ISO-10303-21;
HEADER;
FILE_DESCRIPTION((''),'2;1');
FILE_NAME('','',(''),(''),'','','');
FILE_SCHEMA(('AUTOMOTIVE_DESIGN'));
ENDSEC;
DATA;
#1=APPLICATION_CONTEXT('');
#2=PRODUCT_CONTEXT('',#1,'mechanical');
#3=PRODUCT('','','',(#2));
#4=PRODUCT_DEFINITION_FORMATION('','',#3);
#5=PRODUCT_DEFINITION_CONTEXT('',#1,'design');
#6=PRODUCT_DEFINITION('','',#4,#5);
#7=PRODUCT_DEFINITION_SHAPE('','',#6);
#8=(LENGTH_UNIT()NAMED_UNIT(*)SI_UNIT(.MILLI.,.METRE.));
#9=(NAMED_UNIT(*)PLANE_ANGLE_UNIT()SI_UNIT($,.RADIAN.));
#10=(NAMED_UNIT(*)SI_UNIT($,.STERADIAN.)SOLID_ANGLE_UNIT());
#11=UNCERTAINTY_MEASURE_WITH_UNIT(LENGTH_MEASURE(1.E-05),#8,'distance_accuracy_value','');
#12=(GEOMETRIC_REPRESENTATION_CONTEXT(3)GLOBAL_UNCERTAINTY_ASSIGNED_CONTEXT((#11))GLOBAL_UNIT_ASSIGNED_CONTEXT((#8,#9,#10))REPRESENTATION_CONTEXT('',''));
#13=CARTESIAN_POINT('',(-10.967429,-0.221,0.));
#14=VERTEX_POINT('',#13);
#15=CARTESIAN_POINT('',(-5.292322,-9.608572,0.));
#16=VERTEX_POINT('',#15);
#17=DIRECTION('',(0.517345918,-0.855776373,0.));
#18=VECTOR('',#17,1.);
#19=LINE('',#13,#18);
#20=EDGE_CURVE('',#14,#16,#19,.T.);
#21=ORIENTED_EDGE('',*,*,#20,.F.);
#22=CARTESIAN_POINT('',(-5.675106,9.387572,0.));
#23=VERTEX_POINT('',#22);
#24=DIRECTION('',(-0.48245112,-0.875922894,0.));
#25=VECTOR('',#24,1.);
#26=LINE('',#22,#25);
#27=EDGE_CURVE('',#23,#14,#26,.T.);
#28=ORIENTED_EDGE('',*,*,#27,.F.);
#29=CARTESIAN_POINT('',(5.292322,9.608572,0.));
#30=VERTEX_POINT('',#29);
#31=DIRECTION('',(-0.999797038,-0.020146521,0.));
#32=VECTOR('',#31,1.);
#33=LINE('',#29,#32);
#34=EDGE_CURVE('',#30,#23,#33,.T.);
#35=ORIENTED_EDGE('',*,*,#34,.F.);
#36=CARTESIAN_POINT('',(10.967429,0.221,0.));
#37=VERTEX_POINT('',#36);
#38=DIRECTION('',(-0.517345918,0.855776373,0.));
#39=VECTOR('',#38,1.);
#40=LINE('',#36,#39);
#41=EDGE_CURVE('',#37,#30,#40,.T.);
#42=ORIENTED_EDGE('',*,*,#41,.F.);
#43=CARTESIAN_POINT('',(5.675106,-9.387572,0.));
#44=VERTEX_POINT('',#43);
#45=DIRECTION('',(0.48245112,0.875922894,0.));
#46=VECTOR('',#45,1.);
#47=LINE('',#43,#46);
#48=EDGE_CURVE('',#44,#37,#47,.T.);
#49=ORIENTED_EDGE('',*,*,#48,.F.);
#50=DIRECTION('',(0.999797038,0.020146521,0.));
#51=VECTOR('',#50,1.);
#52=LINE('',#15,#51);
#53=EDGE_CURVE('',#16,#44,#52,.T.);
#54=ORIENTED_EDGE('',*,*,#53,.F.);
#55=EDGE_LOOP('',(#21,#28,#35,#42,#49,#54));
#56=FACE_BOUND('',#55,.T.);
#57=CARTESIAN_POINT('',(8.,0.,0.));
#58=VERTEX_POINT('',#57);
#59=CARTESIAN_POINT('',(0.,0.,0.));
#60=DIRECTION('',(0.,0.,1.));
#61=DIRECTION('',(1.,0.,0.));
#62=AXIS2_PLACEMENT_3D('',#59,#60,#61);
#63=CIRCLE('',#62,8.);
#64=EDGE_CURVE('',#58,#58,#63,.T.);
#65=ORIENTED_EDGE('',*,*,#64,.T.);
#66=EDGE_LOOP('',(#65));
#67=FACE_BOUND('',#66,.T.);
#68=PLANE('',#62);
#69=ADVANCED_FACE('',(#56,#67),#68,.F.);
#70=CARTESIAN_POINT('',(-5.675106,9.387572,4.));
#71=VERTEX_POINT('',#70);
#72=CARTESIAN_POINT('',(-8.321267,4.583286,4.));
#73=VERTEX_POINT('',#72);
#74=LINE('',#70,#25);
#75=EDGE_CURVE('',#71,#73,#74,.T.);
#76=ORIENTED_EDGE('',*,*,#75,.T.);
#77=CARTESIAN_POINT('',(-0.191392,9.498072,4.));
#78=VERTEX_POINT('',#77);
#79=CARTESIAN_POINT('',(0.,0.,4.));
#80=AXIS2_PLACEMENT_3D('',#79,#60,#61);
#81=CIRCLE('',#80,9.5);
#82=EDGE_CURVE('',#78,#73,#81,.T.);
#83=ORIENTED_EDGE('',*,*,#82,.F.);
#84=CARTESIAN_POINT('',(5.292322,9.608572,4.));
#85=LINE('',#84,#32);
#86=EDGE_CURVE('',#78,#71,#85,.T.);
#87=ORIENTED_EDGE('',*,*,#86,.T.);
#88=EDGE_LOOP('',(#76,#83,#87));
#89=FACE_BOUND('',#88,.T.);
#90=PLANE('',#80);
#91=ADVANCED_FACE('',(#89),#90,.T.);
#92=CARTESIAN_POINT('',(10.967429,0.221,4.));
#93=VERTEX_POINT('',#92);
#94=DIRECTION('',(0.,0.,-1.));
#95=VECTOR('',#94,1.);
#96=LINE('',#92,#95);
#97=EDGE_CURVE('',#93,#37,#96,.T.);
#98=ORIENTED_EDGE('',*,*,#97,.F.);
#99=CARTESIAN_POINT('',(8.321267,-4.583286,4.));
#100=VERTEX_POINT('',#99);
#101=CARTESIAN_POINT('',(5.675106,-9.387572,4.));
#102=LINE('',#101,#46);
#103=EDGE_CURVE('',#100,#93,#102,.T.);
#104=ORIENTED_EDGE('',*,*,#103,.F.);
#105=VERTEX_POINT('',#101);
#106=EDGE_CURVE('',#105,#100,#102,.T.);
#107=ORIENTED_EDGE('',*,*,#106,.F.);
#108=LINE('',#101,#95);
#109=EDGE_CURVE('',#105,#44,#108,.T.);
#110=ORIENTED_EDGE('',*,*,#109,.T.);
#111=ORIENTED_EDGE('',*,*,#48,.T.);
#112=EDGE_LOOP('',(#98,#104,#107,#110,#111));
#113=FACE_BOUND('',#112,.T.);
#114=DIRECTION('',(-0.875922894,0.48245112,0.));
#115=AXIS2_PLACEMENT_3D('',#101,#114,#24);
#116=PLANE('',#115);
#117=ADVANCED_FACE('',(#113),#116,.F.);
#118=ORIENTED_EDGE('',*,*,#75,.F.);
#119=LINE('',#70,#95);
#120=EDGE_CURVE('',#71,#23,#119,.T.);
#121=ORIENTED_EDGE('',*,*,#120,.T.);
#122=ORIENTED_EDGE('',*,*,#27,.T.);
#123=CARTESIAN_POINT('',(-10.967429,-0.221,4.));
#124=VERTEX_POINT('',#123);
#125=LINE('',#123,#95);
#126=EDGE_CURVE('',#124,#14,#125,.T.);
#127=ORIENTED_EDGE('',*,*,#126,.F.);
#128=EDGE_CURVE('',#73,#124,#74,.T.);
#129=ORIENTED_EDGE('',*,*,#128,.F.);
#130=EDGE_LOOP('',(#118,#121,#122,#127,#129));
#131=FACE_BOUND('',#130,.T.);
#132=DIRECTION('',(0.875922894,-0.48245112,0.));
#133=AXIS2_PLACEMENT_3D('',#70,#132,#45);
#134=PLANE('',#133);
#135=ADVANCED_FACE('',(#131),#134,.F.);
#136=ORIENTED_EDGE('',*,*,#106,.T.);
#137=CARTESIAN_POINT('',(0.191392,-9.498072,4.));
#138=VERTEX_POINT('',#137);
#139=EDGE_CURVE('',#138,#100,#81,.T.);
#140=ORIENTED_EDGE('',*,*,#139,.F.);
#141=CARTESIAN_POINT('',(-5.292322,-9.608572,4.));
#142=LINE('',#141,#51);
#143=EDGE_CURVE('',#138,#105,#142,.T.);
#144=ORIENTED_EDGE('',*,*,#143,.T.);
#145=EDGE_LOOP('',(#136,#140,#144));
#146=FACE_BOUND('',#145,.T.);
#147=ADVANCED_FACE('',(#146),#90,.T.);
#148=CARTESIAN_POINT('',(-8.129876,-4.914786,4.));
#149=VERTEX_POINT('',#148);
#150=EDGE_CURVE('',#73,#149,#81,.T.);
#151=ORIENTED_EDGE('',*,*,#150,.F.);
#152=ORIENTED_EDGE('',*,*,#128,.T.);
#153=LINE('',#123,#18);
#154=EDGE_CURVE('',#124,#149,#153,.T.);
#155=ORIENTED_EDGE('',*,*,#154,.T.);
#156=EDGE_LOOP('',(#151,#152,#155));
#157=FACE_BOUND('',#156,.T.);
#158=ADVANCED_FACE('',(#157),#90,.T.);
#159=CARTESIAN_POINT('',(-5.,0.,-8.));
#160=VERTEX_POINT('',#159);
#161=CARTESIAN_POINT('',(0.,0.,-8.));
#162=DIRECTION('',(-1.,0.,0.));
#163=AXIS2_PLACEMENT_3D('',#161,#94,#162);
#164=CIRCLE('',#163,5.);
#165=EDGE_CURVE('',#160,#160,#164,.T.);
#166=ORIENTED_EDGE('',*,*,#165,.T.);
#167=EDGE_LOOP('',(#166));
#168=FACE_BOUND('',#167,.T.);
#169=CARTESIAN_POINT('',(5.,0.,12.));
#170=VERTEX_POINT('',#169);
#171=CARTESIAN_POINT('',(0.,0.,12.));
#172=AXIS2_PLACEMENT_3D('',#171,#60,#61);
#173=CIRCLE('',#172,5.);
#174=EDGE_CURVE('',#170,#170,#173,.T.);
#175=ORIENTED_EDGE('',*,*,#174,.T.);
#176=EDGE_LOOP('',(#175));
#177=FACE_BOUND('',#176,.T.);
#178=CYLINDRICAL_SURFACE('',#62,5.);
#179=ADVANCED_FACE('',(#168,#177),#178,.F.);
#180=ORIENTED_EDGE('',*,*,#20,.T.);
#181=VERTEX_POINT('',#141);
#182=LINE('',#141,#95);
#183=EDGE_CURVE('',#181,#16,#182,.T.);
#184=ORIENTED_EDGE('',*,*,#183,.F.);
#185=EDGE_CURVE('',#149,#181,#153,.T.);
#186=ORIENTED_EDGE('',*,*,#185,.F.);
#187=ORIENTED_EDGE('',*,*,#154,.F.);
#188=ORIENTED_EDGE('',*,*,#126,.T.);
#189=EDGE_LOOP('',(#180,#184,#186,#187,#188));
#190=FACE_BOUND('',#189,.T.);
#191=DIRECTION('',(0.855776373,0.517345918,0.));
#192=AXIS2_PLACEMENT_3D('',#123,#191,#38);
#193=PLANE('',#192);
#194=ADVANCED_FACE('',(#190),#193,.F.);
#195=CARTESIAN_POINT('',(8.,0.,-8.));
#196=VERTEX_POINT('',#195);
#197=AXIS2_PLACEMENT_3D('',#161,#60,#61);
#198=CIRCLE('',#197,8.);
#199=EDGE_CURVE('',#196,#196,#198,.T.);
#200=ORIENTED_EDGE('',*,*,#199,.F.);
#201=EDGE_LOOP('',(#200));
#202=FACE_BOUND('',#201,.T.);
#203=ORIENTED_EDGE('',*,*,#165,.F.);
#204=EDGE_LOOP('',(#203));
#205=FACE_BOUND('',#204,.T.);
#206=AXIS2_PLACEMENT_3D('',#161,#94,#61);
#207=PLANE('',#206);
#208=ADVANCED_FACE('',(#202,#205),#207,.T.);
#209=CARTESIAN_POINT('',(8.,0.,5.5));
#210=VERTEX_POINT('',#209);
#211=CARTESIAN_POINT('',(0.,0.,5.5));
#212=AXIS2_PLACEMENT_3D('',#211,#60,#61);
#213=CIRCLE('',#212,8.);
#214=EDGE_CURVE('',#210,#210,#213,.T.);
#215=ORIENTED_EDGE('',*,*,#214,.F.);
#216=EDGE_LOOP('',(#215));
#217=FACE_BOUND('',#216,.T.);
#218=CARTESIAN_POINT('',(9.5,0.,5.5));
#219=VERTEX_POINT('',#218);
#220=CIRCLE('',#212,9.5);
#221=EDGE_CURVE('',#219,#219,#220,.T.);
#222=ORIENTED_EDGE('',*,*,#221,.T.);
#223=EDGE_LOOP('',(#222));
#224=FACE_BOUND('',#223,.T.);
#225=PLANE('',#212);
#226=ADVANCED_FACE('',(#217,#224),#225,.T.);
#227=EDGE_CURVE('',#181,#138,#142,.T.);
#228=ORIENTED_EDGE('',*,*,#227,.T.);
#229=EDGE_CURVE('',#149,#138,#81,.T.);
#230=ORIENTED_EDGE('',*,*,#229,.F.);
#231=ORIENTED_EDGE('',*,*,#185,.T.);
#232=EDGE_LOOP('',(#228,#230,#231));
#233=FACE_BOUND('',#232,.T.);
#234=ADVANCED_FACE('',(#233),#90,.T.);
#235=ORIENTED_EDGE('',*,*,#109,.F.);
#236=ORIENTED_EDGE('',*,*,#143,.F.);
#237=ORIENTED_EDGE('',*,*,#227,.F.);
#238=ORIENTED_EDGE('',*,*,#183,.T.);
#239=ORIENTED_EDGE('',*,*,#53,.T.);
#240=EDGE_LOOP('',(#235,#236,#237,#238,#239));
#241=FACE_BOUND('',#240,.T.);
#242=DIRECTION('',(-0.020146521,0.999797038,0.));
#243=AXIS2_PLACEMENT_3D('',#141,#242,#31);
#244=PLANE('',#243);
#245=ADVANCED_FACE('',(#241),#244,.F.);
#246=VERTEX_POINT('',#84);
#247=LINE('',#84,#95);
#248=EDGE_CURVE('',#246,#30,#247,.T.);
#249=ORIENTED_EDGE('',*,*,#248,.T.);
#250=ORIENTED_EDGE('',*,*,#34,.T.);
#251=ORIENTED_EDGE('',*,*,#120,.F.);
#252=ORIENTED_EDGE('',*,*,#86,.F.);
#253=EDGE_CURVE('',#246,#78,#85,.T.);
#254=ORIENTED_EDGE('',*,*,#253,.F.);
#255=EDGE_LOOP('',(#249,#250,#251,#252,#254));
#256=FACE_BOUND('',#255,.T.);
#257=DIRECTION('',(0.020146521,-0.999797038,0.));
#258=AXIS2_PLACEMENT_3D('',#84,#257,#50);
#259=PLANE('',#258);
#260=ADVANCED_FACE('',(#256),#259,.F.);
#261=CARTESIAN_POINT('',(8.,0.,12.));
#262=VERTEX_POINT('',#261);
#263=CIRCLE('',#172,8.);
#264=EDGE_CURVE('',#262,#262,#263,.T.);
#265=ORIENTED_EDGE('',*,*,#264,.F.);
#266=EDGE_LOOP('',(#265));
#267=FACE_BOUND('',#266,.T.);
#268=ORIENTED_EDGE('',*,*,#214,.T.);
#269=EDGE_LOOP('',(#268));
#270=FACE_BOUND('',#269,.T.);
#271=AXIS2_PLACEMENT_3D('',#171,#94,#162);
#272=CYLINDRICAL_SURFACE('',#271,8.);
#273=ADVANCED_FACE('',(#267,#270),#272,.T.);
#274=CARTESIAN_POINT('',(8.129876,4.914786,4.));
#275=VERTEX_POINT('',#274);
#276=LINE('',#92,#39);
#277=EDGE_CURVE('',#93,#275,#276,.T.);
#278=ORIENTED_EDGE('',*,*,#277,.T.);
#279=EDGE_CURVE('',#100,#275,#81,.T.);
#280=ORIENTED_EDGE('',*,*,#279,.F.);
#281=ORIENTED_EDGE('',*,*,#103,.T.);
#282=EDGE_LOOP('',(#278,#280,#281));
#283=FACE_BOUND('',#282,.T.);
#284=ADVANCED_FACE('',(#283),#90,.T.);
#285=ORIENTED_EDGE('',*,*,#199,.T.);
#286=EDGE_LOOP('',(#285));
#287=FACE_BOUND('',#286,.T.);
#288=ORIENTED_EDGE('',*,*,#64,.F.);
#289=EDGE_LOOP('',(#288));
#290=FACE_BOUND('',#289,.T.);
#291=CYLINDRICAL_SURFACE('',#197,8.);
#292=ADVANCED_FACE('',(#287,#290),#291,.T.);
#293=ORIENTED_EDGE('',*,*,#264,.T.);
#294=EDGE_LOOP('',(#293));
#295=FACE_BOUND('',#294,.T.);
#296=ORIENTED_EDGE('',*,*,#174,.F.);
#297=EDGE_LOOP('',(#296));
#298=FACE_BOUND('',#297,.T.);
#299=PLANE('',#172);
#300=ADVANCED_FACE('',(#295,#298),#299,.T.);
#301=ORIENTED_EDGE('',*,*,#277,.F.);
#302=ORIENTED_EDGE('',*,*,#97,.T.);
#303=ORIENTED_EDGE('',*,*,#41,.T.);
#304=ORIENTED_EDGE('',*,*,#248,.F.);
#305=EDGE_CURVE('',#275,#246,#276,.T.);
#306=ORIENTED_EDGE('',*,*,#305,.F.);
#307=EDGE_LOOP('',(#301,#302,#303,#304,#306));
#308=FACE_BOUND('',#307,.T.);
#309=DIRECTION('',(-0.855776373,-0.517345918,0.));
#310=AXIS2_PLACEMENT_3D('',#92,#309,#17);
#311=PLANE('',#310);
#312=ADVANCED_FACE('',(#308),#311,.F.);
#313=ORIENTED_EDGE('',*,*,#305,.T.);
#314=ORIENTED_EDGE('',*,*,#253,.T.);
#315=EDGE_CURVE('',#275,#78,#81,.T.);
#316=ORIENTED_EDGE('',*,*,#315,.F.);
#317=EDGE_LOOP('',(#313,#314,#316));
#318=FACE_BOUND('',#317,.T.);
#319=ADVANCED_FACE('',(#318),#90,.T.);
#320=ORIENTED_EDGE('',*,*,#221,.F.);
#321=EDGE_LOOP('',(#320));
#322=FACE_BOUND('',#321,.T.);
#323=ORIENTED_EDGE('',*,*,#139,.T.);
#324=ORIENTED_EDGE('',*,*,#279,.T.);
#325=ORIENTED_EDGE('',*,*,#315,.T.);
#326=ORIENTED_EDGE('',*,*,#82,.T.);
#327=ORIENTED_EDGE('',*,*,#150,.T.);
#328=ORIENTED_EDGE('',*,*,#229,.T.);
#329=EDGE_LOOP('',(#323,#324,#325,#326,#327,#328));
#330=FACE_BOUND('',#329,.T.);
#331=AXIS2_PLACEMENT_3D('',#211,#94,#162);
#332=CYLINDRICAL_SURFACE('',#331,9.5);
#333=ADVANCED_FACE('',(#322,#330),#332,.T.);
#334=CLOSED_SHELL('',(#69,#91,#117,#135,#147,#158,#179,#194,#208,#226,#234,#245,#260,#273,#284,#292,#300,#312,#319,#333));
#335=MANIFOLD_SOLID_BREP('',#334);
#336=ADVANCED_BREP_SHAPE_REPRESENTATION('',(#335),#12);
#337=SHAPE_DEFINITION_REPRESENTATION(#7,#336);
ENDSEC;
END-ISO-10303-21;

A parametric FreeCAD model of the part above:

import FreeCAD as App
import Part
import Sketcher

doc = App.newDocument("Part")
body = doc.addObject("PartDesign::Body", "Body")

# Sketch on XY plane
sketch1 = doc.addObject("Sketcher::SketchObject", "Sketch")
body.addObject(sketch1)
sketch1.AttachmentSupport = (doc.XY_Plane, [""])
sketch1.MapMode = "FlatFace"
sketch1.addGeometry([
    Part.LineSegment(App.Vector(6, -9, 0), App.Vector(11, 0, 0)),  # 0
    Part.LineSegment(App.Vector(11, 0, 0), App.Vector(5, 10, 0)),  # 1
    Part.LineSegment(App.Vector(5, 10, 0), App.Vector(-6, 9, 0)),  # 2
    Part.LineSegment(App.Vector(-6, 9, 0), App.Vector(-11, 0, 0)),  # 3
    Part.LineSegment(App.Vector(-11, 0, 0), App.Vector(-5, -10, 0)),  # 4
    Part.LineSegment(App.Vector(-5, -10, 0), App.Vector(6, -9, 0)),  # 5
], False)
sketch1.addConstraint([
    Sketcher.Constraint("Coincident", 0, 2, 1, 1),
    Sketcher.Constraint("Coincident", 1, 2, 2, 1),
    Sketcher.Constraint("Coincident", 2, 2, 3, 1),
    Sketcher.Constraint("Coincident", 3, 2, 4, 1),
    Sketcher.Constraint("Coincident", 4, 2, 5, 1),
    Sketcher.Constraint("Coincident", 5, 2, 0, 1),
    Sketcher.Constraint("Symmetric", 0, 2, 3, 2, -1, 1),
    Sketcher.Constraint("Symmetric", 1, 2, 4, 2, -1, 1),
    Sketcher.Constraint("Symmetric", 2, 2, 5, 2, -1, 1),
    Sketcher.Constraint("Equal", 0, 1),
    Sketcher.Constraint("Equal", 1, 2),
    Sketcher.Constraint("DistanceY", -1, 1, 0, 2, 0.221),
    Sketcher.Constraint("DistanceY", 2, 2, 1, 2, 0.221),
    Sketcher.Constraint("DistanceX", -1, 1, 0, 2, 10.967429),
    Sketcher.Constraint("DistanceY", -1, 1, 2, 2, 9.387572),
])
pad1 = doc.addObject("PartDesign::Pad", "Pad")
body.addObject(pad1)
pad1.Profile = sketch1
pad1.Length = 4

# Sketch on XY plane
sketch2 = doc.addObject("Sketcher::SketchObject", "Sketch001")
body.addObject(sketch2)
sketch2.AttachmentSupport = (doc.XY_Plane, [""])
sketch2.MapMode = "FlatFace"
sketch2.AttachmentOffset = App.Placement(App.Vector(0, 0, 4), App.Rotation())
sketch2.addGeometry(Part.Circle(App.Vector(0, 0, 0), App.Vector(0, 0, 1), 8), False)
sketch2.addConstraint([
    Sketcher.Constraint("Coincident", 0, 3, -1, 1),
    Sketcher.Constraint("Diameter", 0, 16.0),
])
pad2 = doc.addObject("PartDesign::Pad", "Pad001")
body.addObject(pad2)
pad2.Profile = sketch2
pad2.Length = 8

# Sketch on XY plane
sketch3 = doc.addObject("Sketcher::SketchObject", "Sketch002")
body.addObject(sketch3)
sketch3.AttachmentSupport = (doc.XY_Plane, [""])
sketch3.MapMode = "FlatFace"
sketch3.AttachmentOffset = App.Placement(App.Vector(0, 0, 12), App.Rotation())
sketch3.addGeometry(Part.Circle(App.Vector(0, 0, 0), App.Vector(0, 0, 1), 5), False)
sketch3.addConstraint([
    Sketcher.Constraint("Coincident", 0, 3, -1, 1),
    Sketcher.Constraint("Diameter", 0, 10.0),
])
pocket1 = doc.addObject("PartDesign::Pocket", "Pocket")
body.addObject(pocket1)
pocket1.Profile = sketch3
pocket1.Length = 12
doc.recompute()

datumplane = doc.addObject("PartDesign::Plane", "DatumPlane")
body.addObject(datumplane)
datumplane.AttachmentSupport = (doc.XY_Plane, [""])
datumplane.MapMode = "FlatFace"
datumplane.AttachmentOffset = App.Placement(App.Vector(0, 0, 2), App.Rotation())
mirrored = doc.addObject("PartDesign::Mirrored", "Mirrored")
body.addObject(mirrored)
mirrored.Originals = [pad1, pad2]
mirrored.MirrorPlane = (datumplane, [""])
body.Tip = mirrored

# Sketch on XY plane
sketch4 = doc.addObject("Sketcher::SketchObject", "Sketch003")
body.addObject(sketch4)
sketch4.AttachmentSupport = (doc.XY_Plane, [""])
sketch4.MapMode = "FlatFace"
sketch4.AttachmentOffset = App.Placement(App.Vector(0, 0, -8), App.Rotation())
sketch4.addGeometry(Part.Circle(App.Vector(0, 0, 0), App.Vector(0, 0, 1), 5), False)
sketch4.addConstraint([
    Sketcher.Constraint("Coincident", 0, 3, -1, 1),
    Sketcher.Constraint("Diameter", 0, 10.0),
])
pocket2 = doc.addObject("PartDesign::Pocket", "Pocket001")
body.addObject(pocket2)
pocket2.Profile = sketch4
pocket2.Length = 12
pocket2.Reversed = True

# Sketch on XY plane
sketch5 = doc.addObject("Sketcher::SketchObject", "Sketch004")
body.addObject(sketch5)
sketch5.AttachmentSupport = (doc.XY_Plane, [""])
sketch5.MapMode = "FlatFace"
sketch5.AttachmentOffset = App.Placement(App.Vector(0, 0, 4), App.Rotation())
sketch5.addGeometry(Part.Circle(App.Vector(0, 0, 0), App.Vector(0, 0, 1), 10), False)
sketch5.addConstraint([
    Sketcher.Constraint("Coincident", 0, 3, -1, 1),
    Sketcher.Constraint("Diameter", 0, 19.0),
])
pad3 = doc.addObject("PartDesign::Pad", "Pad002")
body.addObject(pad3)
pad3.Profile = sketch5
pad3.Length = 1.5

# Sketch on XY plane
sketch6 = doc.addObject("Sketcher::SketchObject", "Sketch005")
body.addObject(sketch6)
sketch6.AttachmentSupport = (doc.XY_Plane, [""])
sketch6.MapMode = "FlatFace"
sketch6.AttachmentOffset = App.Placement(App.Vector(0, 0, 4), App.Rotation())
sketch6.addGeometry(Part.Circle(App.Vector(0, 0, 0), App.Vector(0, 0, 1), 5), False)
sketch6.addConstraint([
    Sketcher.Constraint("Coincident", 0, 3, -1, 1),
    Sketcher.Constraint("Diameter", 0, 10.0),
])
pocket3 = doc.addObject("PartDesign::Pocket", "Pocket002")
body.addObject(pocket3)
pocket3.Profile = sketch6
pocket3.Length = 3.5
pocket3.Reversed = True

doc.recompute()
